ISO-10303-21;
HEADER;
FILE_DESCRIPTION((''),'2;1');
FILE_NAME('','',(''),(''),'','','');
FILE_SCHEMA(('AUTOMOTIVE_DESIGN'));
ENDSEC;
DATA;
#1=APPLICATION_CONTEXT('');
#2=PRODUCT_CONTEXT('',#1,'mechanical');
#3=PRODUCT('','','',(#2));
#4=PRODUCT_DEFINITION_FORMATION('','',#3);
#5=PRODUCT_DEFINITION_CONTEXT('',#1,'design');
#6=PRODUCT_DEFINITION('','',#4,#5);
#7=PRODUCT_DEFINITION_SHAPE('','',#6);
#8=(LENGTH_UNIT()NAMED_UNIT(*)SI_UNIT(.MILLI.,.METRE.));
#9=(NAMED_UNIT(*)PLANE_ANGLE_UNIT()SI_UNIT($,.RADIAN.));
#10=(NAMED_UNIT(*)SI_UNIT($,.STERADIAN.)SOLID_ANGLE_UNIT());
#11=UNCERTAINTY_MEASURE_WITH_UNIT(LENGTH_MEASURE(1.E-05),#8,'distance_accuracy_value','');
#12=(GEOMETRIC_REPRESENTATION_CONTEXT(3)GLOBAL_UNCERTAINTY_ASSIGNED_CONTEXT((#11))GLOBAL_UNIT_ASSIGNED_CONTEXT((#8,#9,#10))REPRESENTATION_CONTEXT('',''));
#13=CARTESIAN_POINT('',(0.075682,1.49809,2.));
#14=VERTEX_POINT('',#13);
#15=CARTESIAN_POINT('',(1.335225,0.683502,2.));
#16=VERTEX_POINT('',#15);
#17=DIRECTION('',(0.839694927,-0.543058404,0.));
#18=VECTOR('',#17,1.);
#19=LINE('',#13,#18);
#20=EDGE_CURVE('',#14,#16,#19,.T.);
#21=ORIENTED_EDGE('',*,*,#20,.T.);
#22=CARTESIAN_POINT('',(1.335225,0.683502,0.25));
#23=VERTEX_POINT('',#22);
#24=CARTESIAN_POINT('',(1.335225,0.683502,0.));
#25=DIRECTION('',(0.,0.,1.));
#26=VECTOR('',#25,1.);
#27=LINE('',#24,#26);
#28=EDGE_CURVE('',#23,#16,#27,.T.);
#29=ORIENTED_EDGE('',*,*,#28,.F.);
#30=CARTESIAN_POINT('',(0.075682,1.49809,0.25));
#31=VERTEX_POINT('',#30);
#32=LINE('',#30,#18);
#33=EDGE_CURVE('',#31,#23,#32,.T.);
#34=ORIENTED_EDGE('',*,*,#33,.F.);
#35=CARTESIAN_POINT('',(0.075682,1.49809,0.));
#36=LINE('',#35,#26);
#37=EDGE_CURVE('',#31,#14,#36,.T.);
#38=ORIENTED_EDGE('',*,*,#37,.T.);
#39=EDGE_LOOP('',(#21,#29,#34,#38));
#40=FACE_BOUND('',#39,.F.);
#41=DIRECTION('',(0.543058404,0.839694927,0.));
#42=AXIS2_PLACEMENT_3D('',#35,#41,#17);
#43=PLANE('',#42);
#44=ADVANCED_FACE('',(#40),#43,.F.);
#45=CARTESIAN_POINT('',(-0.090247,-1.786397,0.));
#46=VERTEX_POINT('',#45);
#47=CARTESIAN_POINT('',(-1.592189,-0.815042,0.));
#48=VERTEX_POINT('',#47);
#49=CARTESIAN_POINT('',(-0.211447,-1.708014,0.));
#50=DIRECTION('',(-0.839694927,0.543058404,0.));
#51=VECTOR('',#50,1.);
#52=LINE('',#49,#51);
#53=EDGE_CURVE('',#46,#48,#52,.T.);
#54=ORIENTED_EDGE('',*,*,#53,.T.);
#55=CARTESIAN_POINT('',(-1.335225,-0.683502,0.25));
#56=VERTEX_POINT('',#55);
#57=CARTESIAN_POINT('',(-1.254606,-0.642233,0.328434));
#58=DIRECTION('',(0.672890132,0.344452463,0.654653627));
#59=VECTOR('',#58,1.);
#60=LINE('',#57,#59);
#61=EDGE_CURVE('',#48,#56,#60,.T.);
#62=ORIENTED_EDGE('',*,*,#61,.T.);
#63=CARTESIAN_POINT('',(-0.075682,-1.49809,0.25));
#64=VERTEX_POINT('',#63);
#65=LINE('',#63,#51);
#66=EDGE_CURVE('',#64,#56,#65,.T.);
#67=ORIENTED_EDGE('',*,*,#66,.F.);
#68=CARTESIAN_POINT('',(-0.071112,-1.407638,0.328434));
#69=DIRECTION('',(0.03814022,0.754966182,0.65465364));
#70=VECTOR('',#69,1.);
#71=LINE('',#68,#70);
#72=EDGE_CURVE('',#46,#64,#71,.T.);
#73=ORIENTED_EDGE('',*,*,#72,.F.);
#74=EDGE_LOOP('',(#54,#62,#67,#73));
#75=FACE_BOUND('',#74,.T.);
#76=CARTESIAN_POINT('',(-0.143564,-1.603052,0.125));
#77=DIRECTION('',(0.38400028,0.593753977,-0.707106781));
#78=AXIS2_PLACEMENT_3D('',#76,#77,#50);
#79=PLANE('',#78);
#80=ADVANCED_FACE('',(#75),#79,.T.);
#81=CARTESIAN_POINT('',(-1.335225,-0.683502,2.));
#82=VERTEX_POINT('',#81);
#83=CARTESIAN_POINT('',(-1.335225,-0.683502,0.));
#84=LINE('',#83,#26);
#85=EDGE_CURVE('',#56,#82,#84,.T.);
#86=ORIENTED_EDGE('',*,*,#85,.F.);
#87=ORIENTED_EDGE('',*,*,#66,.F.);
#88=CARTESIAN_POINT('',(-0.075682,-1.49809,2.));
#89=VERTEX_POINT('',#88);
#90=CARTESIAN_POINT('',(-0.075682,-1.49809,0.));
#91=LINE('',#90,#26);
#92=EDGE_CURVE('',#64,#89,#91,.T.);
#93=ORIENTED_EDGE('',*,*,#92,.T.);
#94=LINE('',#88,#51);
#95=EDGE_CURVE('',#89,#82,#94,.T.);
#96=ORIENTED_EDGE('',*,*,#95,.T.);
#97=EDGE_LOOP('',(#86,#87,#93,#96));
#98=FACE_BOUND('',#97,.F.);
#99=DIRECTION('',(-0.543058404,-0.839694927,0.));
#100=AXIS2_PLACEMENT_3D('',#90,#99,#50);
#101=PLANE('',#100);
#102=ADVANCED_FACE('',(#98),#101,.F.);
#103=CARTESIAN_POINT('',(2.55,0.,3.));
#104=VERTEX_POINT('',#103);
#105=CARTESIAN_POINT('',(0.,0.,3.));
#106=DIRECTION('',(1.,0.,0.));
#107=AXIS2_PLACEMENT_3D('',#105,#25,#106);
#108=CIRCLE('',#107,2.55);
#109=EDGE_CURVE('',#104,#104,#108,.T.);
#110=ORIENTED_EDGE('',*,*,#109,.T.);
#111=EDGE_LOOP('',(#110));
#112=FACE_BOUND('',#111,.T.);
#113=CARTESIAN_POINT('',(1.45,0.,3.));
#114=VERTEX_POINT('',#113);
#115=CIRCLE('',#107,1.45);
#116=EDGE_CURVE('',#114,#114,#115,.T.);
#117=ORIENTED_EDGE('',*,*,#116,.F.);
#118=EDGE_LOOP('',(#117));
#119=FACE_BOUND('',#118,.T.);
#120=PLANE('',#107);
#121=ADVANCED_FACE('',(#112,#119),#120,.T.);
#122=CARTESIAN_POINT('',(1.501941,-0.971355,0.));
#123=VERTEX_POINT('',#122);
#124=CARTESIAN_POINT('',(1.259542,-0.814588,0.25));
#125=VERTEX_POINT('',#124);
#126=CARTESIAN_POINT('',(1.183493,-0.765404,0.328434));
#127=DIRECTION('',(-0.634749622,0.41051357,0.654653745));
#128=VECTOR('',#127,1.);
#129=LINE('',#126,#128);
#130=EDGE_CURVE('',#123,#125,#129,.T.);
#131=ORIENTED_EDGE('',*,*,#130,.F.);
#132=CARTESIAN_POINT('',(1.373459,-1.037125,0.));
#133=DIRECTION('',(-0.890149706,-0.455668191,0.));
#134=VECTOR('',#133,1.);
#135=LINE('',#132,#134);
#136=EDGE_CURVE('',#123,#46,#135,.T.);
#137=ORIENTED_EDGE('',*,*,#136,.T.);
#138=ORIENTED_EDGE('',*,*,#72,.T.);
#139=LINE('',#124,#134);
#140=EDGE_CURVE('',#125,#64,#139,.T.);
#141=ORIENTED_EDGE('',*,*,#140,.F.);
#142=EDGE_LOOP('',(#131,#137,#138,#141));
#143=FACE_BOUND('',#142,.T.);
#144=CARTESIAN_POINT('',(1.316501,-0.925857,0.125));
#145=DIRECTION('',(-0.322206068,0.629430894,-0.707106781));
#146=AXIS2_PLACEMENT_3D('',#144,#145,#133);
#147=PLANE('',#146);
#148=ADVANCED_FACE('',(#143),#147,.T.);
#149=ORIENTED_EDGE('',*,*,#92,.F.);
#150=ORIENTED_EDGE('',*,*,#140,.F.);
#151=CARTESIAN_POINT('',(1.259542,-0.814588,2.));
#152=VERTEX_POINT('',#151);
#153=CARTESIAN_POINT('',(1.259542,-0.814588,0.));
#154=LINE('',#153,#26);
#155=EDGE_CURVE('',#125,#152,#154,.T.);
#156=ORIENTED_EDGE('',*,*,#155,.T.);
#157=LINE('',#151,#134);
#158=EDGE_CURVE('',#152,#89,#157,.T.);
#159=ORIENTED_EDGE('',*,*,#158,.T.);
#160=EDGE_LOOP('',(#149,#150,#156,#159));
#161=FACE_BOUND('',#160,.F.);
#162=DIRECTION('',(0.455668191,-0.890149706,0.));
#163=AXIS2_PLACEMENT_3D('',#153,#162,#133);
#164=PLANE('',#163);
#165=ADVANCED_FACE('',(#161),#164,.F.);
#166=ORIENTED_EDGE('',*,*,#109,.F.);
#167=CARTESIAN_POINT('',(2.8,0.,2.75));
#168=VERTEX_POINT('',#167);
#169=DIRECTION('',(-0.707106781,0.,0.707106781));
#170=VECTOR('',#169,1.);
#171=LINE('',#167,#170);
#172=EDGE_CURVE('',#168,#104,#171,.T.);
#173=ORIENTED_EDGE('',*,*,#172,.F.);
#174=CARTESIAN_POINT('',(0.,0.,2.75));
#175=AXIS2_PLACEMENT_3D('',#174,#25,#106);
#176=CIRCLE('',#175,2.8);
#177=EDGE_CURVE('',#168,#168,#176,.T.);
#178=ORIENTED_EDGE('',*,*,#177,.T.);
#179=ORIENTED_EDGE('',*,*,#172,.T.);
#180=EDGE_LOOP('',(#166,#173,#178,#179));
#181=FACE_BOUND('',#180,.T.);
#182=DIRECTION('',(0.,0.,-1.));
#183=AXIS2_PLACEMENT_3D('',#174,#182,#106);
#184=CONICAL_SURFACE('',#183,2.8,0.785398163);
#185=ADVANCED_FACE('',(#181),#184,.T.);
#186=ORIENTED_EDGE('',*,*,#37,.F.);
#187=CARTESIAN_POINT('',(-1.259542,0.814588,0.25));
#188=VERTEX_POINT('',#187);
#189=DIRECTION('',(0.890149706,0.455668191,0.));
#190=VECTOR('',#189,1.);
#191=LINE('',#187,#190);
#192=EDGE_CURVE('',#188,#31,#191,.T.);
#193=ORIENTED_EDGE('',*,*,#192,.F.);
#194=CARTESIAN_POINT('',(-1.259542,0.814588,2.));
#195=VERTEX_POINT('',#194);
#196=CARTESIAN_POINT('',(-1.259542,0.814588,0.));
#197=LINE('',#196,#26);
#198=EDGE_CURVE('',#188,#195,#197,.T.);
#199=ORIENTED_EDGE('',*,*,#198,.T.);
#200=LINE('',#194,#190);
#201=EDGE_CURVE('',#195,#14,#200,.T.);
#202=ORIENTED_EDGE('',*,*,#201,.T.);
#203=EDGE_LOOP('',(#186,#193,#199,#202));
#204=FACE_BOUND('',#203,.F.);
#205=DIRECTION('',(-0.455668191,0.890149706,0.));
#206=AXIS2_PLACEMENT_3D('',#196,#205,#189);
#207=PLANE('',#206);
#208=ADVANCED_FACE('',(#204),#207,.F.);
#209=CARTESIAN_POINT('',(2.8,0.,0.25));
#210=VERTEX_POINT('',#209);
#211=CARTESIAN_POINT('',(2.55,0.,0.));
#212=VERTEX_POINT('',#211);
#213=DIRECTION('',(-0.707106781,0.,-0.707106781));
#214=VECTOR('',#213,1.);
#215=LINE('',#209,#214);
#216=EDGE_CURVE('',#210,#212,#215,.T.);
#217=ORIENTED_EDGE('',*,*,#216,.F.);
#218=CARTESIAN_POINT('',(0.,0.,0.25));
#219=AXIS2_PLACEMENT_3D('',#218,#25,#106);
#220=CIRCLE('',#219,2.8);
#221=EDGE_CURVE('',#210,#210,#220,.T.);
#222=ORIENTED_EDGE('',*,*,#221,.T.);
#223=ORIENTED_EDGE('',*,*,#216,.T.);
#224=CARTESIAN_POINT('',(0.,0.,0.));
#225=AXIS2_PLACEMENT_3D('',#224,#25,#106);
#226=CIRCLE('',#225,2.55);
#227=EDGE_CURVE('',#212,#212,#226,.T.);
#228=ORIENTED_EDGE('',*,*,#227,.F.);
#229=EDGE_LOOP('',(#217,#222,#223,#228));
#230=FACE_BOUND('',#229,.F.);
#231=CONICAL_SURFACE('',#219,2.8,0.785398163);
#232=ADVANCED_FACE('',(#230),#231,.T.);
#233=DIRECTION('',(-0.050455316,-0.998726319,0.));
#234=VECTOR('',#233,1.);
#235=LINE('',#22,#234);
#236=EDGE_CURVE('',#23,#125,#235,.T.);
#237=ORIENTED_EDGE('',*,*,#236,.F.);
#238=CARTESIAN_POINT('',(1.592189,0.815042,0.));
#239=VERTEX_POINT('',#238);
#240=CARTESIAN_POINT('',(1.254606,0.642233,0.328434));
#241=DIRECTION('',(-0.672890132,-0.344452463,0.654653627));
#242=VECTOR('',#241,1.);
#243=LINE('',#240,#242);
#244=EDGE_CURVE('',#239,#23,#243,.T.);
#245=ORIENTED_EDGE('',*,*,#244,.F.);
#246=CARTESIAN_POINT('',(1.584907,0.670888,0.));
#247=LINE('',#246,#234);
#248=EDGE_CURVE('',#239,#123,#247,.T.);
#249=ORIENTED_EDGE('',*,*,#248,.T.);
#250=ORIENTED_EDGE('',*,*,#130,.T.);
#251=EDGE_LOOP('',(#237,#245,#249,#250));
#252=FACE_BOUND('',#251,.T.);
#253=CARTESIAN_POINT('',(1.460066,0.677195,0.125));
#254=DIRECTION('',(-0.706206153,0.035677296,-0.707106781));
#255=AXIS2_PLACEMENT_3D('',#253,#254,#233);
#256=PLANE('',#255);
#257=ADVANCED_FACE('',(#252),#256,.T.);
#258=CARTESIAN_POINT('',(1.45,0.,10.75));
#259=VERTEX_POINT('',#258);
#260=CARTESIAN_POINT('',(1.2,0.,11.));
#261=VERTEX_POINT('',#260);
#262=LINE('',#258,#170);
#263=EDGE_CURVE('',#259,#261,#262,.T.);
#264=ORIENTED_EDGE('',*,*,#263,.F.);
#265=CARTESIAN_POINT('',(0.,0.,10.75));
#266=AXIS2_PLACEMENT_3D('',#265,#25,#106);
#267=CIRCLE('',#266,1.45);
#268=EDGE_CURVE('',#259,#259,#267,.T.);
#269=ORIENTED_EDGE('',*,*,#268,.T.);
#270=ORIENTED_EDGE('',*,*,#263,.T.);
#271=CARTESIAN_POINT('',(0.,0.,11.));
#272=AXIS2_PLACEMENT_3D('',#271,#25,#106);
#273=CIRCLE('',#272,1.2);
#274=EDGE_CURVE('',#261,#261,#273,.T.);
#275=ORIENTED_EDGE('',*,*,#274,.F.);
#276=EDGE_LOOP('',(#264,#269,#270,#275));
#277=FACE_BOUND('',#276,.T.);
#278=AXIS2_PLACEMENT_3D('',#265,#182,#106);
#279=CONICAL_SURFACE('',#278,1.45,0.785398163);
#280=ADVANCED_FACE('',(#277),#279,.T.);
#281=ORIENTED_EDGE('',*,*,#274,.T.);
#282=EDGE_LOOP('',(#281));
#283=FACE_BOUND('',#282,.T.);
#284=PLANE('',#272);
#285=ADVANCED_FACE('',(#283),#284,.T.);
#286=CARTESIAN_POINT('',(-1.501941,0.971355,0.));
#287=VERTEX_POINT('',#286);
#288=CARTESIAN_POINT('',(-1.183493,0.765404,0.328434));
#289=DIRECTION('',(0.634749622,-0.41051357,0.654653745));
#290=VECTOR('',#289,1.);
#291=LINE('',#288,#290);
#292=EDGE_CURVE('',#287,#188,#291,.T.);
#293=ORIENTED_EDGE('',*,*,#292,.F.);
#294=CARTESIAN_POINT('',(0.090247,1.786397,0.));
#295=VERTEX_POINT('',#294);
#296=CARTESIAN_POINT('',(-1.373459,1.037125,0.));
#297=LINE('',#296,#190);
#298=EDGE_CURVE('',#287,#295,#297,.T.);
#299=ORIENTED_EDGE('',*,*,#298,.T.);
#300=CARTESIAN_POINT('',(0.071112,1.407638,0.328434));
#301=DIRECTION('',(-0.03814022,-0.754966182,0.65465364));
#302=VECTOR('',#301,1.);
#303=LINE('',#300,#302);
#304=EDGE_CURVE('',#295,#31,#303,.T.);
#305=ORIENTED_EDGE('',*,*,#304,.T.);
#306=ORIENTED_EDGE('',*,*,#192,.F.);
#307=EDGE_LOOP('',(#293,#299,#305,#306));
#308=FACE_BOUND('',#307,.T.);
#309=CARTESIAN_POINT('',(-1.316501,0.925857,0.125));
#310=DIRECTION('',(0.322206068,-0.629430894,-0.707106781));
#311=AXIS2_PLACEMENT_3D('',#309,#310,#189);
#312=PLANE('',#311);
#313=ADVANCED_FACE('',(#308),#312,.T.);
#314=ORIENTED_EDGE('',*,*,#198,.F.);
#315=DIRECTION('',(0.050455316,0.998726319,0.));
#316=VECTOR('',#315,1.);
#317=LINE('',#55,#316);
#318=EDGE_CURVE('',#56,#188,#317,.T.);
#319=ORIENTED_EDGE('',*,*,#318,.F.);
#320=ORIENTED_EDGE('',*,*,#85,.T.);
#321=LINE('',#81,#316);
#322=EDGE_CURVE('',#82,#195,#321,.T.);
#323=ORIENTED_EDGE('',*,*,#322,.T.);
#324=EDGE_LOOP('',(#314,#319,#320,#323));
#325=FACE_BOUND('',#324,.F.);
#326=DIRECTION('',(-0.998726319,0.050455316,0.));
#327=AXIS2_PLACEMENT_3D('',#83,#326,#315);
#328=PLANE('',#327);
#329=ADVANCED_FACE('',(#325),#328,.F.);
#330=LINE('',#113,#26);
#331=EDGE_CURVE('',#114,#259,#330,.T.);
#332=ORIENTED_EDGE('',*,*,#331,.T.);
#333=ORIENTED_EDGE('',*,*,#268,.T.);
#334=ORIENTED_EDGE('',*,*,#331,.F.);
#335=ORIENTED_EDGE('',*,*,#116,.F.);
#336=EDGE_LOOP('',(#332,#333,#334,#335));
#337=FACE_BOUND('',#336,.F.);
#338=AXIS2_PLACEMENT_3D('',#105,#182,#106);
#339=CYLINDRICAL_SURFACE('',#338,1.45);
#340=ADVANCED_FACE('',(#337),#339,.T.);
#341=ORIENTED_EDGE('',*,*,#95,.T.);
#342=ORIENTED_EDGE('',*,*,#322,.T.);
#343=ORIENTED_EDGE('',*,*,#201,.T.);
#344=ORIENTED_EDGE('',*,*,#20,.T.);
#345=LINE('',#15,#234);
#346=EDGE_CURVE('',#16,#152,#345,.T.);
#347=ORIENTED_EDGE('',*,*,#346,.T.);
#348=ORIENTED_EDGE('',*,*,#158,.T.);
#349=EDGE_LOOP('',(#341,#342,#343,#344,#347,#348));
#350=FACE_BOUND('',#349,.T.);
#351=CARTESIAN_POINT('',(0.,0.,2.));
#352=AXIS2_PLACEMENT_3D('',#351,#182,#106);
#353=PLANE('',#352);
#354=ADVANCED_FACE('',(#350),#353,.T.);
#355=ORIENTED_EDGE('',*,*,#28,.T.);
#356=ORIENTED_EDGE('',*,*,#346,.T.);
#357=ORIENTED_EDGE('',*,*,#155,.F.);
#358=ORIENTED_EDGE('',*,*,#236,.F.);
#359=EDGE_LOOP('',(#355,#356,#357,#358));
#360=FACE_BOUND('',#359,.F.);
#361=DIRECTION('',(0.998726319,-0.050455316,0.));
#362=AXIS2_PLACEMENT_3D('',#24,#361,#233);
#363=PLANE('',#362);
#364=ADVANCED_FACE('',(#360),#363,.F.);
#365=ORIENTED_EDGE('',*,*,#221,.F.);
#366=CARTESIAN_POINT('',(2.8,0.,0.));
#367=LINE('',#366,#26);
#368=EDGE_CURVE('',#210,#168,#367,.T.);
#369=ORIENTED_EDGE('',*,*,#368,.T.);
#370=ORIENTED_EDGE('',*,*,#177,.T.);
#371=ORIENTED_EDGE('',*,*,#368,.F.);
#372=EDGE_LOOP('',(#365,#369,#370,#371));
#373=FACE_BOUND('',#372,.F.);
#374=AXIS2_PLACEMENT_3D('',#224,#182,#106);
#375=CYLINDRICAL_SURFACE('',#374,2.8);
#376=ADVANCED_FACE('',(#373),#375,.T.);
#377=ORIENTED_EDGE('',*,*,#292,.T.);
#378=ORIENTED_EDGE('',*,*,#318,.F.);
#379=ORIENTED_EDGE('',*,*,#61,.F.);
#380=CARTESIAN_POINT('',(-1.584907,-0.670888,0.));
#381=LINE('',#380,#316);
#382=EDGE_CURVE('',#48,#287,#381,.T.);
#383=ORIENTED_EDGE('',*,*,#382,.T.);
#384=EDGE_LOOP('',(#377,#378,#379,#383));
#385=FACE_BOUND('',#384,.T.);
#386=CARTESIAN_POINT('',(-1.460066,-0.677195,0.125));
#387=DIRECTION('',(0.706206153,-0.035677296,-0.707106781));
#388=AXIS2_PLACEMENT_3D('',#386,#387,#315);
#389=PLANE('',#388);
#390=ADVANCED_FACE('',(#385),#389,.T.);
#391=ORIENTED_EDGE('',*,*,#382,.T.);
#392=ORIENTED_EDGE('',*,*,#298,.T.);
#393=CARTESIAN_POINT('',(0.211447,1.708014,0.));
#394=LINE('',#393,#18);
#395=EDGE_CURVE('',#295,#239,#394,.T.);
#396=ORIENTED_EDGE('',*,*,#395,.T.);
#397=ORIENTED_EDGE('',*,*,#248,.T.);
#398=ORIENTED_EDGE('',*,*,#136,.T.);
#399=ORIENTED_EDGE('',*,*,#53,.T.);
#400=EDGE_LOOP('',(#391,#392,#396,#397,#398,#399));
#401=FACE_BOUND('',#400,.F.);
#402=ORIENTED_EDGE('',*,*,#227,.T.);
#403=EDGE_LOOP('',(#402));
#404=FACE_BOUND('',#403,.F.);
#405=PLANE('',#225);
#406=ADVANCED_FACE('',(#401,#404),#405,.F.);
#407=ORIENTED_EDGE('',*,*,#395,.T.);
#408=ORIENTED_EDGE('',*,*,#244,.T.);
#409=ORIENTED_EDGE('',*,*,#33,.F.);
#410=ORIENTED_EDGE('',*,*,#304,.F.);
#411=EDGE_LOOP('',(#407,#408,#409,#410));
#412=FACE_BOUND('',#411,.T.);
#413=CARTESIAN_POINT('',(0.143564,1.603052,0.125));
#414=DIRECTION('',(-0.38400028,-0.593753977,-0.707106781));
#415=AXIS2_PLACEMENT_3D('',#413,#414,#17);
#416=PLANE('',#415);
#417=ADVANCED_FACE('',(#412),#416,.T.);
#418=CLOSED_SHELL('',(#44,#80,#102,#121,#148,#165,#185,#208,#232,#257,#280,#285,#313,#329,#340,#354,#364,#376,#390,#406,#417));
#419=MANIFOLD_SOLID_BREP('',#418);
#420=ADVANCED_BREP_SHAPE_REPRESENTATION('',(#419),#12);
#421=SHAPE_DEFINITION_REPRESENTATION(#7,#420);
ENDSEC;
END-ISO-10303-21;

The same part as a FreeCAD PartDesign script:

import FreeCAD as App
import Part
import Sketcher

V = App.Vector
Q = App.Units.Quantity


def edges_at(feature, points):
    """Names of the edges that pass closest to the given points."""
    edges = feature.Shape.Edges
    near = lambda p: min(range(len(edges)), key=lambda i: edges[i].distToShape(Part.Vertex(*p))[0])
    return sorted({f"Edge{near(p) + 1}" for p in points})


def add_polygon(sketch, points):
    """Adds a closed chain of lines whose ends are joined by coincident constraints."""
    first, n = sketch.GeometryCount, len(points)
    for a, b in zip(points, points[1:] + points[:1]):
        sketch.addGeometry(Part.LineSegment(App.Vector(*a, 0), App.Vector(*b, 0)), False)
    for i in range(n):
        sketch.addConstraint(Sketcher.Constraint("Coincident", first + i, 2, first + (i + 1) % n, 1))

doc = App.newDocument("Part")
body = doc.addObject("PartDesign::Body", "Body")

# Sketch on XY plane
sketch1 = doc.addObject("Sketcher::SketchObject", "Sketch")
body.addObject(sketch1)
sketch1.AttachmentSupport = (doc.XY_Plane, [""])
sketch1.MapMode = "FlatFace"
sketch1.addGeometry(Part.Circle(V(0, 0, 0), V(0, 0, 1), 2.8), False)
sketch1.addConstraint([
    Sketcher.Constraint("Coincident", 0, 3, -1, 1),
    Sketcher.Constraint("Diameter", 0, Q("5.6 mm")),
])
pad1 = doc.addObject("PartDesign::Pad", "Pad")
body.addObject(pad1)
pad1.Profile = sketch1
pad1.Length = 3

# Sketch on XY plane
sketch2 = doc.addObject("Sketcher::SketchObject", "Sketch001")
body.addObject(sketch2)
sketch2.AttachmentSupport = (doc.XY_Plane, [""])
sketch2.MapMode = "FlatFace"
sketch2.AttachmentOffset = App.Placement(V(0, 0, 3), App.Rotation())
sketch2.addGeometry(Part.Circle(V(0, 0, 0), V(0, 0, 1), 1.4), False)
sketch2.addConstraint([
    Sketcher.Constraint("Coincident", 0, 3, -1, 1),
    Sketcher.Constraint("Diameter", 0, Q("2.9 mm")),
])
pad2 = doc.addObject("PartDesign::Pad", "Pad001")
body.addObject(pad2)
pad2.Profile = sketch2
pad2.Length = 8

# Sketch on XY plane
sketch3 = doc.addObject("Sketcher::SketchObject", "Sketch002")
body.addObject(sketch3)
sketch3.AttachmentSupport = (doc.XY_Plane, [""])
sketch3.MapMode = "FlatFace"
add_polygon(sketch3, [(1.3, -0.8), (-0.1, -1.5), (-1.3, -0.7), (-1.3, 0.8), (0.1, 1.5), (1.3, 0.7)])  # lines 0-5
sketch3.addConstraint([
    Sketcher.Constraint("Symmetric", 0, 2, 3, 2, -1, 1),
    Sketcher.Constraint("Symmetric", 1, 2, 4, 2, -1, 1),
    Sketcher.Constraint("Symmetric", 2, 2, 5, 2, -1, 1),
    Sketcher.Constraint("Equal", 0, 1),
    Sketcher.Constraint("Equal", 1, 2),
    Sketcher.Constraint("Distance", 0, Q("1.499999 mm")),
    Sketcher.Constraint("DistanceY", 2, 2, 3, 2, Q("0.683502 mm")),
    Sketcher.Constraint("DistanceY", 0, 2, -1, 1, Q("1.49809 mm")),
    Sketcher.Constraint("DistanceX", 2, 2, -1, 1, Q("1.259542 mm")),
])
pocket1 = doc.addObject("PartDesign::Pocket", "Pocket")
body.addObject(pocket1)
pocket1.Profile = sketch3
pocket1.Length = 2
pocket1.Reversed = True
doc.recompute()

chamfer = doc.addObject("PartDesign::Chamfer", "Chamfer")
body.addObject(chamfer)
chamfer.Base = (pocket1, edges_at(pocket1, [
    (-2.8, 0, 3),
    (-2.8, 0, 0),
    (1.297, -0.066, 0),
    (0.705, 1.091, 0),
    (-0.592, 1.156, 0),
    (-1.297, 0.066, 0),
    (-0.705, -1.091, 0),
    (0.592, -1.156, 0),
    (-1.45, 0, 11),
]))
chamfer.Size = 0.25

doc.recompute()
